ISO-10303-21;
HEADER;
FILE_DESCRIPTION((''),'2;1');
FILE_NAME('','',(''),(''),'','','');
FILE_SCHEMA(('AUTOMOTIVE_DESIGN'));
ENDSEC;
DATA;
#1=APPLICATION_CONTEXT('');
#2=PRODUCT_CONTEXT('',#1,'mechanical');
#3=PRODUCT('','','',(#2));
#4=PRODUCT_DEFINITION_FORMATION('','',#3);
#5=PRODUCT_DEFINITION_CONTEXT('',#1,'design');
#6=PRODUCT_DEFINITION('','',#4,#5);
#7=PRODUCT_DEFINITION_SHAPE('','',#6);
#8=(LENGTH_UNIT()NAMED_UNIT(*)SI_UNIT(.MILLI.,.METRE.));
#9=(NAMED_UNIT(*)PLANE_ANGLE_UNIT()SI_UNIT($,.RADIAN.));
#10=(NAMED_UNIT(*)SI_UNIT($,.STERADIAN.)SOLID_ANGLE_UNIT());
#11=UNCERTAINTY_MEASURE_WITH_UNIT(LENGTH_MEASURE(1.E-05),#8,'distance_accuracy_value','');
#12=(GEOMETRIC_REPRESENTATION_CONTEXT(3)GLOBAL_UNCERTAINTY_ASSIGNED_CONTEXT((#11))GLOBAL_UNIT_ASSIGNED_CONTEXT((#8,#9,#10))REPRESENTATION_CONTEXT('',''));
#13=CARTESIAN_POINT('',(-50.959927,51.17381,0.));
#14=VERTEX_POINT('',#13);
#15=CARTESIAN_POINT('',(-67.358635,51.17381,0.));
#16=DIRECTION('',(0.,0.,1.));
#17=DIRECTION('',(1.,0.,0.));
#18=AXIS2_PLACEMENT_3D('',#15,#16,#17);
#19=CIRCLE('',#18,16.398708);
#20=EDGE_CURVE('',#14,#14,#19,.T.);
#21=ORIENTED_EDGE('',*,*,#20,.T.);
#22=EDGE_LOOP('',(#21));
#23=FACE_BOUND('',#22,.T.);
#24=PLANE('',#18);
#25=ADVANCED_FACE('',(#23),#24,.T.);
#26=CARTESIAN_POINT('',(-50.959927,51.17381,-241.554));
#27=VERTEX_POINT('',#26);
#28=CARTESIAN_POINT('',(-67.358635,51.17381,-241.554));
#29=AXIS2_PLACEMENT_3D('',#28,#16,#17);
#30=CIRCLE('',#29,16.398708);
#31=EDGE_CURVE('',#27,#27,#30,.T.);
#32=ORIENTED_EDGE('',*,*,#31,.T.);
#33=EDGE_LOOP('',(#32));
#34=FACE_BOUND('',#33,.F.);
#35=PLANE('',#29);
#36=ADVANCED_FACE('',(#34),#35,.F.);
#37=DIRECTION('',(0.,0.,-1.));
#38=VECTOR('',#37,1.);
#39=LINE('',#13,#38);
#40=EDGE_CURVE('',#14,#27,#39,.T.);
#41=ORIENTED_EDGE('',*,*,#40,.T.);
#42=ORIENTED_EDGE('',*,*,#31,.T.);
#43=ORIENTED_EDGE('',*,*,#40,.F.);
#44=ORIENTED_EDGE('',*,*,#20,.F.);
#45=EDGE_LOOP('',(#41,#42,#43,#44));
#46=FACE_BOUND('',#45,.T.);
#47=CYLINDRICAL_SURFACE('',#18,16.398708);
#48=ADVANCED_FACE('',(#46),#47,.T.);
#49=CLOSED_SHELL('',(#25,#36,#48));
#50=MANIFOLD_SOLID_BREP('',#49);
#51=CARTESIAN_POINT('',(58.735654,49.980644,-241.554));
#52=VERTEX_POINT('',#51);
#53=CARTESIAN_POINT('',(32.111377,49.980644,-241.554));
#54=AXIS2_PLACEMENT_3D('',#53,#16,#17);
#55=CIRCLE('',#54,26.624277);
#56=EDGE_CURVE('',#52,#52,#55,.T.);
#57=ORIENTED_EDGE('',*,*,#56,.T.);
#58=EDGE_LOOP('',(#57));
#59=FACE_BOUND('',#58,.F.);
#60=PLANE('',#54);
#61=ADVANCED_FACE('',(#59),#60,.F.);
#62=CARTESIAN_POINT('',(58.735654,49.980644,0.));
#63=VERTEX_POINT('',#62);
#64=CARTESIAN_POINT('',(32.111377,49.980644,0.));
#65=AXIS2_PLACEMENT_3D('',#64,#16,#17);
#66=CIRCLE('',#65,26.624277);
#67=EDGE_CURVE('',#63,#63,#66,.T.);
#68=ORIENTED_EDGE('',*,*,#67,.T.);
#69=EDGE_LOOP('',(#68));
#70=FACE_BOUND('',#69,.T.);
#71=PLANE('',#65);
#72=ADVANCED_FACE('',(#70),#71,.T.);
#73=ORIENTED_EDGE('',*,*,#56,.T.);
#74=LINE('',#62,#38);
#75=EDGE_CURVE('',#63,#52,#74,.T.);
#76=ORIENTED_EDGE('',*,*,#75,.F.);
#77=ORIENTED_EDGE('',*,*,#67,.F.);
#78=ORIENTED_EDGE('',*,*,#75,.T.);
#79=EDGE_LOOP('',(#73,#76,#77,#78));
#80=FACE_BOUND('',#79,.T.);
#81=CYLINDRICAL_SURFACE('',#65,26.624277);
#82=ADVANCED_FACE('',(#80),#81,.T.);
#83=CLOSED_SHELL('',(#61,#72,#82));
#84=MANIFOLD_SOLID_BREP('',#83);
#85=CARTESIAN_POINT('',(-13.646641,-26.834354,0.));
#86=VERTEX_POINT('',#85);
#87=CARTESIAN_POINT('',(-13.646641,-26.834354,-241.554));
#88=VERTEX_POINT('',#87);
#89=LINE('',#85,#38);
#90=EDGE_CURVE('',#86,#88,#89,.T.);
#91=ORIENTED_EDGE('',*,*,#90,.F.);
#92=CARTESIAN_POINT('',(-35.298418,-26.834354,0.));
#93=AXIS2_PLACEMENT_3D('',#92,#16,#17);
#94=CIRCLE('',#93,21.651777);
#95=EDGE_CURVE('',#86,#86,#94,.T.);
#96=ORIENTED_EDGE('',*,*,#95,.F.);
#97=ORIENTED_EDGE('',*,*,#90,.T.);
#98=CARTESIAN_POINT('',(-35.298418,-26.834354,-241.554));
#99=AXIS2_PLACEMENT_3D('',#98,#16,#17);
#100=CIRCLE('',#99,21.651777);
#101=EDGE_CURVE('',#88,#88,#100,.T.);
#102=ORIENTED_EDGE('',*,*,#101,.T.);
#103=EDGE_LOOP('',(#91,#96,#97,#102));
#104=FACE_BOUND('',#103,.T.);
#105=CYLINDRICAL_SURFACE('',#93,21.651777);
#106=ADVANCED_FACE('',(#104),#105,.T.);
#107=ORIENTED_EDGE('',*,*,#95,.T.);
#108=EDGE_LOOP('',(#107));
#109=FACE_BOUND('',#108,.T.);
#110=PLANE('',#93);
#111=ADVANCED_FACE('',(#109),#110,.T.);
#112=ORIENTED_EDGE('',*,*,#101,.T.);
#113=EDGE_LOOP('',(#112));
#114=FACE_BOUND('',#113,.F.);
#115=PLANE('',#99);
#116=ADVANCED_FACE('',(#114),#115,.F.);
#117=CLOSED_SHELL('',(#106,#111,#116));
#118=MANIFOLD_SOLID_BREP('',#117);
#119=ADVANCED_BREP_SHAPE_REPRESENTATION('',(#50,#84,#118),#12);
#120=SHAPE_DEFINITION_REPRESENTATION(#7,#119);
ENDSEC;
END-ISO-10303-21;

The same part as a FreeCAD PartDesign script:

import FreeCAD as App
import Part
import Sketcher
from FreeCAD import Vector
Q = App.Units.Quantity

doc = App.newDocument("Part")
body = doc.addObject("PartDesign::Body", "Body")
body.AllowCompound = True

# Sketch on XY plane
sketch1 = body.newObject("Sketcher::SketchObject", "Sketch")
sketch1.AttachmentSupport = (doc.getObject("XY_Plane"), [""])
sketch1.MapMode = "FlatFace"
sketch1.addGeometry(Part.Circle(Vector(-67.358635, 51.17381, 0), Vector(0, 0, 1), 16.398708), False)
sketch1.addGeometry(Part.Circle(Vector(32.111377, 49.980644, 0), Vector(0, 0, 1), 26.624277), False)
sketch1.addGeometry(Part.Circle(Vector(-35.298418, -26.834354, 0), Vector(0, 0, 1), 21.651777), False)
sketch1.addConstraint(Sketcher.Constraint("Diameter", 0, 32.797416))
sketch1.addConstraint(Sketcher.Constraint("Diameter", 1, 53.248554))
sketch1.addConstraint(Sketcher.Constraint("Diameter", 2, 43.303554))
sketch1.addConstraint(Sketcher.Constraint("DistanceY", 2, 3, 1, 3, 76.814998))
sketch1.addConstraint(Sketcher.Constraint("DistanceY", -1, 1, 0, 3, 51.17381))
sketch1.addConstraint(Sketcher.Constraint("DistanceX", 0, 3, 1, 3, 99.470012))
sketch1.addConstraint(Sketcher.Constraint("DistanceX", 0, 3, -1, 1, 67.358635))
sketch1.addConstraint(Sketcher.Constraint("DistanceY", -1, 1, 1, 3, 49.980644))
sketch1.addConstraint(Sketcher.Constraint("DistanceX", 2, 3, -1, 1, 35.298418))
pad1 = body.newObject("PartDesign::Pad", "Pad")
pad1.Profile = sketch1
pad1.Length = Q("9.51 in")
pad1.Reversed = True

doc.recompute()
